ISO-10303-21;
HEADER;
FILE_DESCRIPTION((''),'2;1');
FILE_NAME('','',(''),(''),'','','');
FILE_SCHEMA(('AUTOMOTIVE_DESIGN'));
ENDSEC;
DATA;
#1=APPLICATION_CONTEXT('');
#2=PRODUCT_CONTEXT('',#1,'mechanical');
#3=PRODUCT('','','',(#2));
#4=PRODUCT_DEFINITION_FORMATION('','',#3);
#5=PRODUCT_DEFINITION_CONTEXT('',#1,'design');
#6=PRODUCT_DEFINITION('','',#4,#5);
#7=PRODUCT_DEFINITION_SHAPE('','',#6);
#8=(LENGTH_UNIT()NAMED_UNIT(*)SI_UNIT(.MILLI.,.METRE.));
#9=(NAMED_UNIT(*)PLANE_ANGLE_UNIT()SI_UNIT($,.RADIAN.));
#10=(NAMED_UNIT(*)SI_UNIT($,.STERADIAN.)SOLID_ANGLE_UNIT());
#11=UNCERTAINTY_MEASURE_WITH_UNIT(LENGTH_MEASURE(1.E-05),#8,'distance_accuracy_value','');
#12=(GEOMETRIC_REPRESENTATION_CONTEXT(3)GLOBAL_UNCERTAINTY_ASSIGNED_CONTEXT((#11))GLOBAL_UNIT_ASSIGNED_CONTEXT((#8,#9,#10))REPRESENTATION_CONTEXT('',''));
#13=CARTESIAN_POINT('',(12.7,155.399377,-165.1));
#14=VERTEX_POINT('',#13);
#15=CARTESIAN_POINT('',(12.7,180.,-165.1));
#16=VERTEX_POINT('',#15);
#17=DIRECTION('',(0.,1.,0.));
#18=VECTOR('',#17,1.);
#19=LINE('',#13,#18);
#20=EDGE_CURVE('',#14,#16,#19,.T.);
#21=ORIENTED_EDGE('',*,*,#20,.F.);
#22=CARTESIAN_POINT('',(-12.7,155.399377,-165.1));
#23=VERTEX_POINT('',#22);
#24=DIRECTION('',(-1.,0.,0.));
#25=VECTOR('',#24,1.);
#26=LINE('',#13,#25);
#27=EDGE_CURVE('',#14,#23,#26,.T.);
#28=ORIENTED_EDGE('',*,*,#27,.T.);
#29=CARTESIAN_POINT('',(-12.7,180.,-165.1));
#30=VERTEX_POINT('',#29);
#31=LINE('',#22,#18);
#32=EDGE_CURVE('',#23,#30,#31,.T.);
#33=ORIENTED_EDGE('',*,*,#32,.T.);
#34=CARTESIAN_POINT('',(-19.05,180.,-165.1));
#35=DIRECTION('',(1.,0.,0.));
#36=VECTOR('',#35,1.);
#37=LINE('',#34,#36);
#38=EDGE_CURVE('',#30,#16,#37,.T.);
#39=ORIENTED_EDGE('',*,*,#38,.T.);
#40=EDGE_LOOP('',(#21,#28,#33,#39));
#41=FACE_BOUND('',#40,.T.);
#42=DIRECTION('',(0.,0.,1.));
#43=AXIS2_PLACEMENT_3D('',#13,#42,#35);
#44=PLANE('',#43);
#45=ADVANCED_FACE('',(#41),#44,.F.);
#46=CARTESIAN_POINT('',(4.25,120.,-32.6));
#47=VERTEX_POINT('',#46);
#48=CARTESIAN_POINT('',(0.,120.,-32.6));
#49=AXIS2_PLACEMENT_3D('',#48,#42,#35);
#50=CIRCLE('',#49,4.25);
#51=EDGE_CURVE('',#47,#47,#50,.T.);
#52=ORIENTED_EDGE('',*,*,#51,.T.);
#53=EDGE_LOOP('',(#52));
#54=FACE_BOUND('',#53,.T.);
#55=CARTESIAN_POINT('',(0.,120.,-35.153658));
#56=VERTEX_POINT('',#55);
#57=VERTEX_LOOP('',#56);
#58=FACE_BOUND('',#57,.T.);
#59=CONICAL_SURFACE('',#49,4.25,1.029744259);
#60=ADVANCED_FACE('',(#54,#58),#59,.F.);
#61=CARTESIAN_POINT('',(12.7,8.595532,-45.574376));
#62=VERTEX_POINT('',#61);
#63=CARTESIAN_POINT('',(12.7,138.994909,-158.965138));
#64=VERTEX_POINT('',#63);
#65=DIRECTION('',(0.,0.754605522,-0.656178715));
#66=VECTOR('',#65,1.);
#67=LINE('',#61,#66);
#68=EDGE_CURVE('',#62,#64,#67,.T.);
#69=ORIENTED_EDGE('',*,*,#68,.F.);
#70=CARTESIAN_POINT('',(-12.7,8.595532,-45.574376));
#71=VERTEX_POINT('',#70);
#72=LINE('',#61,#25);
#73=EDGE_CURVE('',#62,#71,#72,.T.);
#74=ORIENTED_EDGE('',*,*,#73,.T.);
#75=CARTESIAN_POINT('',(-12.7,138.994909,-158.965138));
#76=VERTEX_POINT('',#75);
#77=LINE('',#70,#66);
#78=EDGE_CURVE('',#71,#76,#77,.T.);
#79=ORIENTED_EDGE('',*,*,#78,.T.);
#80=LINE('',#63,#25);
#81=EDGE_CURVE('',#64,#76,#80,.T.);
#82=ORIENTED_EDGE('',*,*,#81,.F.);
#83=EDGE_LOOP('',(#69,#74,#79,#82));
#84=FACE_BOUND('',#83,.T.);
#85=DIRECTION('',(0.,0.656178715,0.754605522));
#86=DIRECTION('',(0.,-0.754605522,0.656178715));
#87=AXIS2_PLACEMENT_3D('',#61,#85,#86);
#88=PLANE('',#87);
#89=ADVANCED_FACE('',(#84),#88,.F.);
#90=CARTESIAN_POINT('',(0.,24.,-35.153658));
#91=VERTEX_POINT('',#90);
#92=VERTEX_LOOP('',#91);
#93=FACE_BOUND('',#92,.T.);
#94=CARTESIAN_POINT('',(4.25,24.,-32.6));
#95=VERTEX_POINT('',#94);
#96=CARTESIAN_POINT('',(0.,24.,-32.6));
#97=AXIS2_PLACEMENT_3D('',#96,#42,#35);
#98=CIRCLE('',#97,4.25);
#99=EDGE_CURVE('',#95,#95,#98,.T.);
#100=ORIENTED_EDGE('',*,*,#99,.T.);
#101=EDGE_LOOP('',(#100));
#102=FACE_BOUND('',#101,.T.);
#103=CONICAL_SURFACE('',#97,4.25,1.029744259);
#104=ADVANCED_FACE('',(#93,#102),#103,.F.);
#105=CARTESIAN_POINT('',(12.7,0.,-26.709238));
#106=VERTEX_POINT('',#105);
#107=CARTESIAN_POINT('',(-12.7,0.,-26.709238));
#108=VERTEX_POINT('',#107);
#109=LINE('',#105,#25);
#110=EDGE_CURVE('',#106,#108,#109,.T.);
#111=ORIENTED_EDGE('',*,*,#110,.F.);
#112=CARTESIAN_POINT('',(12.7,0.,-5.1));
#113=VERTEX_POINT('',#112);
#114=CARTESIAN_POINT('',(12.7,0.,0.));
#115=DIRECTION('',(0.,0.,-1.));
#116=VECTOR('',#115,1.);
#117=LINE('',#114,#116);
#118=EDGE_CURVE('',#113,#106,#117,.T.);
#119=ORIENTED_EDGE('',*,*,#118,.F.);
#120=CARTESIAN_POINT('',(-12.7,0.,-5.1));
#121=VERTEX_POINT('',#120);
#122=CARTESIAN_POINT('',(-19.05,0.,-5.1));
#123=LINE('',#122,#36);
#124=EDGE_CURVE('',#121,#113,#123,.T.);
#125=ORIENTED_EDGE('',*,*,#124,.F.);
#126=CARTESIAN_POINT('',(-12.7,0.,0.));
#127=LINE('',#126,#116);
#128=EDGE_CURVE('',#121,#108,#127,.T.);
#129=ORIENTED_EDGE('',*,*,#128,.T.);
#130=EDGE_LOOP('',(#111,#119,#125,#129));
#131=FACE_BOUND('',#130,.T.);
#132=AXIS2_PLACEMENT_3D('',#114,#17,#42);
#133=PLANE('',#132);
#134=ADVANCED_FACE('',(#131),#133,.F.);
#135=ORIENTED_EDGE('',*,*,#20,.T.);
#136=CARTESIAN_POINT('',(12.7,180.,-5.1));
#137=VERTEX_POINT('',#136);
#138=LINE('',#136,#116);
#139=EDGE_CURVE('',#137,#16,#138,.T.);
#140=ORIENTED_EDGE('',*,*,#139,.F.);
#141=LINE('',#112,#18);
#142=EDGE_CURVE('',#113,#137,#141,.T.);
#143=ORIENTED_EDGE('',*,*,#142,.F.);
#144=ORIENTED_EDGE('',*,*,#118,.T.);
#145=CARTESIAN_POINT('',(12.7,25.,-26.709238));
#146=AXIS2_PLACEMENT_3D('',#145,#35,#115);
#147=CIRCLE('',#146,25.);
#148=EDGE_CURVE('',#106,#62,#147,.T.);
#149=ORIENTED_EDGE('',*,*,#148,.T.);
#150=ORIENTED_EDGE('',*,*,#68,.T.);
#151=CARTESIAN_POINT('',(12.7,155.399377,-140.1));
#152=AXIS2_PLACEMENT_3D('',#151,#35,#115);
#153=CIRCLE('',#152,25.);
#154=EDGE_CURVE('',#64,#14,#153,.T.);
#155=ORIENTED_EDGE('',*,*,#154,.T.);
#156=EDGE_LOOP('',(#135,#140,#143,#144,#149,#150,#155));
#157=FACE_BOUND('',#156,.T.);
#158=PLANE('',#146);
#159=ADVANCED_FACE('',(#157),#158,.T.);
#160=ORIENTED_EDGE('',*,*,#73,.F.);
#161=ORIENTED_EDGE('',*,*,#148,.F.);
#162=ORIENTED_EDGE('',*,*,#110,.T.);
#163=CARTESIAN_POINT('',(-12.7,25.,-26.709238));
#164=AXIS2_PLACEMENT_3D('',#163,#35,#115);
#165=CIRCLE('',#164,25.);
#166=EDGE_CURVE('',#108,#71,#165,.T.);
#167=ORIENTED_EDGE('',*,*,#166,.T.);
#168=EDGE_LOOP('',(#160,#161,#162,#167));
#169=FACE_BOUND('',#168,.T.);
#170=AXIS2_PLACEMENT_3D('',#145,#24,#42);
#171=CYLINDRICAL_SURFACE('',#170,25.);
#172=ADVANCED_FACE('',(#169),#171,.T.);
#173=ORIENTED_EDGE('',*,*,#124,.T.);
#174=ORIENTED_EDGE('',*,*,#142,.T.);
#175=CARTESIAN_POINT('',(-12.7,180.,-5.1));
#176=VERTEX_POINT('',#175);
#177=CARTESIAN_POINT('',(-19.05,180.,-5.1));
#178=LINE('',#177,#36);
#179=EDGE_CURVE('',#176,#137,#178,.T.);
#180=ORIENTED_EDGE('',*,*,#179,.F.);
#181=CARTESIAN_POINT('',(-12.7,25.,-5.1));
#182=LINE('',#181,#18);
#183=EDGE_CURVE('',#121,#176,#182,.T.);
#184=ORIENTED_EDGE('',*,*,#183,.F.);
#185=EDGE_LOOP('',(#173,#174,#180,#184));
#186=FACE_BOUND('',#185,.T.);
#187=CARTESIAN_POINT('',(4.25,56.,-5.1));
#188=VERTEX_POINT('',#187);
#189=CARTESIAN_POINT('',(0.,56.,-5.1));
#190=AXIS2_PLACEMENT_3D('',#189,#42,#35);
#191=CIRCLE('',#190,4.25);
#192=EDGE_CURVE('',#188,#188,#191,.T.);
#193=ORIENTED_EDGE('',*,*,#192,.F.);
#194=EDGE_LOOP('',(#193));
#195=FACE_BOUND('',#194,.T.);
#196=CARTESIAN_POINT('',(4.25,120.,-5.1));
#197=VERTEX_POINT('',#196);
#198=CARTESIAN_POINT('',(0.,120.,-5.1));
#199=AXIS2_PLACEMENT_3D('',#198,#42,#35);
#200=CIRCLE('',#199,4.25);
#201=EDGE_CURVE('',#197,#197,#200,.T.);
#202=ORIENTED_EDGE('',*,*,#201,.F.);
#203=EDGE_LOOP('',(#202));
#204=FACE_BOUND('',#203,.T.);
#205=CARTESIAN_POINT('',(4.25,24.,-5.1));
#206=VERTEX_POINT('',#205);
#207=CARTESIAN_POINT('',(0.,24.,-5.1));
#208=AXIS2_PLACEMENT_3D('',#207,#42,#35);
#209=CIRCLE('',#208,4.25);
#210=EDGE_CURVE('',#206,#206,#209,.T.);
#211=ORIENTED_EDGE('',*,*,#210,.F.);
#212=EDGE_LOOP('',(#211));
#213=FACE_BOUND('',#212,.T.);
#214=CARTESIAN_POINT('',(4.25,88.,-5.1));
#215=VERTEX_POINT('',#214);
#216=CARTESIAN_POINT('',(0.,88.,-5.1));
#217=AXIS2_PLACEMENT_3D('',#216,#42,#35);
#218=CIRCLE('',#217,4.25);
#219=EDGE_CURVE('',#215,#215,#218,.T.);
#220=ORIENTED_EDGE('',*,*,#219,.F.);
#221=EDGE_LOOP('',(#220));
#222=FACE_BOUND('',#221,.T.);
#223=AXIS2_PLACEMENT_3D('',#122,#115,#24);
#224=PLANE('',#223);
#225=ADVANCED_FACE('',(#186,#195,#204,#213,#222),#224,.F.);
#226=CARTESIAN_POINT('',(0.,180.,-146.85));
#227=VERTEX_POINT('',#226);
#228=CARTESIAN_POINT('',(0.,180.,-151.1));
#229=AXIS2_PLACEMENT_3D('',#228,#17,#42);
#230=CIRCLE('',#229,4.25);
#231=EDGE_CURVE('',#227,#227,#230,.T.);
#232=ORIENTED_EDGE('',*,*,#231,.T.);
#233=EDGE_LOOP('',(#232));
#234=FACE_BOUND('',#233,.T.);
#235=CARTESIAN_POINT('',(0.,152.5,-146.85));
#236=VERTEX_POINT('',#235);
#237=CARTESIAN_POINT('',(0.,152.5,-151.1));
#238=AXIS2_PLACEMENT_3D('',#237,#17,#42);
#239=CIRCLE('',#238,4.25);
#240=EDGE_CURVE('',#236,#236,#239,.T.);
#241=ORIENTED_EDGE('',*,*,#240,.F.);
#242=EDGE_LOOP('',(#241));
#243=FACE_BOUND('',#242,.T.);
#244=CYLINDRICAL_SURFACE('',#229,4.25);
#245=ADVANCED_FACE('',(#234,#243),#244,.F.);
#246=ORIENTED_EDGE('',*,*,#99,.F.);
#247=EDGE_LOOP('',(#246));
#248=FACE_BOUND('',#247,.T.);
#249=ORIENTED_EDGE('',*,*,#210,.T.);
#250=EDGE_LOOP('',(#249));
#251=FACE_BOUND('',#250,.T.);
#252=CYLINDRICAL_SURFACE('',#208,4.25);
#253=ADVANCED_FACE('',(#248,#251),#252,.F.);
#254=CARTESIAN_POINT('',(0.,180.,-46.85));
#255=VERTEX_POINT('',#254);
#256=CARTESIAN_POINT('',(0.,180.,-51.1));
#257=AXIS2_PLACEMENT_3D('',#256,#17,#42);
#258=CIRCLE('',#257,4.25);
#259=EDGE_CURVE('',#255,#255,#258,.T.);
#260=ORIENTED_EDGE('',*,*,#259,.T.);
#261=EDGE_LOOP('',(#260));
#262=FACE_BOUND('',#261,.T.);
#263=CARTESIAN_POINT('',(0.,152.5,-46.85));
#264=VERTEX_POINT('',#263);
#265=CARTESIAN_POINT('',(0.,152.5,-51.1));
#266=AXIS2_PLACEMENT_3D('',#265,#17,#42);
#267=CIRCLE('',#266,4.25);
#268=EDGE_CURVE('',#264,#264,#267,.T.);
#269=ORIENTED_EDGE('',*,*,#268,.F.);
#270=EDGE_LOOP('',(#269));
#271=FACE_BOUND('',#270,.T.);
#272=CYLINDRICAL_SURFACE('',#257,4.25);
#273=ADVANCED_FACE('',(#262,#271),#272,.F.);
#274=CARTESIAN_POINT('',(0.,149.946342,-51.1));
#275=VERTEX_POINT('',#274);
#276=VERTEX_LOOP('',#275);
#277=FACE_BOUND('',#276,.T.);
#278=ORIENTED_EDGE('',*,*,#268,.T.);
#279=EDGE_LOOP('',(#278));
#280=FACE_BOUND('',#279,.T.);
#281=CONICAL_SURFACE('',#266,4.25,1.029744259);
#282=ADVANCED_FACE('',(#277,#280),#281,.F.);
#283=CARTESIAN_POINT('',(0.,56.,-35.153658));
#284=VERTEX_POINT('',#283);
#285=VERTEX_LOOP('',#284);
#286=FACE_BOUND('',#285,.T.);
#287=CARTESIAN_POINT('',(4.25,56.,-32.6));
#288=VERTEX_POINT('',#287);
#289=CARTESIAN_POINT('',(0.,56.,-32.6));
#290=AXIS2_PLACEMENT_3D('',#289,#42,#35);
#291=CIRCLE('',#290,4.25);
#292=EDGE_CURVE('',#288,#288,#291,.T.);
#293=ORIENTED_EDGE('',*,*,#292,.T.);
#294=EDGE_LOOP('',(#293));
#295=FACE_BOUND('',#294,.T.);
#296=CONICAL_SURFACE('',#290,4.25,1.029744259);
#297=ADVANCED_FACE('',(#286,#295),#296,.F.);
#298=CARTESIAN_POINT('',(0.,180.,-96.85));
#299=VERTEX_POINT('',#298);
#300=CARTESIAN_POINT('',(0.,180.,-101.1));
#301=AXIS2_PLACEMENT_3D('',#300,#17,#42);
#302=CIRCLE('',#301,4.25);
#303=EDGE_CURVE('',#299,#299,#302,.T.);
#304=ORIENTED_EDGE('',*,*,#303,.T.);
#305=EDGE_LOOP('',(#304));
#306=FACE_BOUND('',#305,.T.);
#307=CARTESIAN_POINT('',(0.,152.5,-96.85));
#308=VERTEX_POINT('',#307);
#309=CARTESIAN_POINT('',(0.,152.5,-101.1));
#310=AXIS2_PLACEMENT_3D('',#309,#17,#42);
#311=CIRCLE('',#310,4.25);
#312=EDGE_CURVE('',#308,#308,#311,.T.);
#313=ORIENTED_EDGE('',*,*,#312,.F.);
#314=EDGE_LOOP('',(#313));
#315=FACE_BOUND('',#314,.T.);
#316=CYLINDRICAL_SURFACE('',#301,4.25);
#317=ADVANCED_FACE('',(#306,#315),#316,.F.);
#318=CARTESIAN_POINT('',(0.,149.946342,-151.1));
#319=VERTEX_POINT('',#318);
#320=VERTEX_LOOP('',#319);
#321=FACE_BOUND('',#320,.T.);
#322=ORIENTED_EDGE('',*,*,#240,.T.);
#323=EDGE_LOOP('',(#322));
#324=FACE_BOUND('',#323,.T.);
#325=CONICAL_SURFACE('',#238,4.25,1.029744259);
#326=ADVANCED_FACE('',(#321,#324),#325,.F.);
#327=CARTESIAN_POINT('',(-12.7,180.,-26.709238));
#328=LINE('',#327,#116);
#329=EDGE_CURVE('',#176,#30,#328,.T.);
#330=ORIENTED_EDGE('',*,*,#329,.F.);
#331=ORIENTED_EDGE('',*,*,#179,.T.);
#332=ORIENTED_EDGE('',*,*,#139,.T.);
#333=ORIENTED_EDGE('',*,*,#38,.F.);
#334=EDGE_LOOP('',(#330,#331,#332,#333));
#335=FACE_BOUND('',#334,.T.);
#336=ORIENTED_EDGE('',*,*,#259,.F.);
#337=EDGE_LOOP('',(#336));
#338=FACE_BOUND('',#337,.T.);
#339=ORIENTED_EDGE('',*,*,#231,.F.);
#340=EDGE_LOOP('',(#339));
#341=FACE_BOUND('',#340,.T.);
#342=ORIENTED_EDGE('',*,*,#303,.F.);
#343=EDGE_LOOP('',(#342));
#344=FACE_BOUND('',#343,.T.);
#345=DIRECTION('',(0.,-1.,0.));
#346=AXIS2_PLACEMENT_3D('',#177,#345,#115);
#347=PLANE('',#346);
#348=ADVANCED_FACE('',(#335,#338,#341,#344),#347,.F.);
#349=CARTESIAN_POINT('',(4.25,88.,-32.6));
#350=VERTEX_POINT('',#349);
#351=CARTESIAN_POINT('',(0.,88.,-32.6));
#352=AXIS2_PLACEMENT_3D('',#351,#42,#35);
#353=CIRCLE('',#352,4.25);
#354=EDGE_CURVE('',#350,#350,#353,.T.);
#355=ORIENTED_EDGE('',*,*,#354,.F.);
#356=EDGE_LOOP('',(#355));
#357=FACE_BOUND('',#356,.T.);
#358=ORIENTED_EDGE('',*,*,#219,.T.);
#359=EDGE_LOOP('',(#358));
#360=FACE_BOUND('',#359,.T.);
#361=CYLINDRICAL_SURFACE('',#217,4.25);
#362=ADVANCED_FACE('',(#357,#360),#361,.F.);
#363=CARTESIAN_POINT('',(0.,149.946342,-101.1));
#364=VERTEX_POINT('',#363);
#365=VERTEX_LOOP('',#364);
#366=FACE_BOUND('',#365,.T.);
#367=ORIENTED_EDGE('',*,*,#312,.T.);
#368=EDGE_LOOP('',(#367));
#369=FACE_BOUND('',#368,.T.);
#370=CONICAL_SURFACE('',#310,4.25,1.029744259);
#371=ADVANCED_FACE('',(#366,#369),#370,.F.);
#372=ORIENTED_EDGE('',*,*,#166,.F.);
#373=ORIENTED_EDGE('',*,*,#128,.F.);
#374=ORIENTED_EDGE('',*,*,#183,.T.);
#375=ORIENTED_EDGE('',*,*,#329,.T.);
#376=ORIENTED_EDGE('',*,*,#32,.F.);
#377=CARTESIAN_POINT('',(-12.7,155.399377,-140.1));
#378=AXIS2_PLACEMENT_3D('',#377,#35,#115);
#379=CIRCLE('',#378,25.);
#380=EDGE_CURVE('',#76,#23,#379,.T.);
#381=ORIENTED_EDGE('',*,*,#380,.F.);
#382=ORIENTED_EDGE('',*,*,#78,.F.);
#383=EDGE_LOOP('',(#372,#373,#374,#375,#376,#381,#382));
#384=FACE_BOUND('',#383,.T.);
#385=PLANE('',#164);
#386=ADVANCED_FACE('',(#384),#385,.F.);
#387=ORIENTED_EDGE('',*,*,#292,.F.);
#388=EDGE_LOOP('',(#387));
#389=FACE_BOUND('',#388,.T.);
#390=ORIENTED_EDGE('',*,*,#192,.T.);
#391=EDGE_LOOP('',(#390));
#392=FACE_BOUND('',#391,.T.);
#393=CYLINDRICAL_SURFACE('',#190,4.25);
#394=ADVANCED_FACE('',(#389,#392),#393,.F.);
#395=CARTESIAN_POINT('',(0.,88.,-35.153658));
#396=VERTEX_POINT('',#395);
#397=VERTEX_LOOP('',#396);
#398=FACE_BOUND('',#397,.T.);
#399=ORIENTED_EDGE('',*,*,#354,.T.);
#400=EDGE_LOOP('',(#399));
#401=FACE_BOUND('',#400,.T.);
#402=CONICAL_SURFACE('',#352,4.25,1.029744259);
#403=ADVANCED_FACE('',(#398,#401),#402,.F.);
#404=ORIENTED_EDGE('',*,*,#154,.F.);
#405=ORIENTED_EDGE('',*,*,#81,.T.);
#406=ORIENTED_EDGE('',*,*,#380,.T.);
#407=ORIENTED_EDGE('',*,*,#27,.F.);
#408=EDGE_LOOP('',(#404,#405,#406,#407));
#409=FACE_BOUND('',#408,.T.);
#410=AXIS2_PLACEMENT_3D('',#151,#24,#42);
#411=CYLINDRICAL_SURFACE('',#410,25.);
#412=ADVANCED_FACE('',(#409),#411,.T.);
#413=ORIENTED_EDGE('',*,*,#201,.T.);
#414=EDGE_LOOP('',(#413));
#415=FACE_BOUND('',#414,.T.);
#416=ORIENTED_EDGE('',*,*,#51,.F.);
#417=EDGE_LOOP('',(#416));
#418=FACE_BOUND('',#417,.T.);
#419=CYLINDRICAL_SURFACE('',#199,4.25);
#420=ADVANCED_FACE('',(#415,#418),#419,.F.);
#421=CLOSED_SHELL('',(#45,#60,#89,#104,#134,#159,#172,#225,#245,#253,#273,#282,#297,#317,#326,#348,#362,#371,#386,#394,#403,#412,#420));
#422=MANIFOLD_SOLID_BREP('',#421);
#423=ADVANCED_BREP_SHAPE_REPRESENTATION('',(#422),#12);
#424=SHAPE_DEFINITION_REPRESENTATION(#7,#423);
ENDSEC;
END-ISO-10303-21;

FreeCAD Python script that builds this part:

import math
import FreeCAD as App
import Part
import Sketcher


def add_polygon(sketch, points):
    """Adds a closed chain of lines whose ends are joined by coincident constraints."""
    first, n = sketch.GeometryCount, len(points)
    for a, b in zip(points, points[1:] + points[:1]):
        sketch.addGeometry(Part.LineSegment(App.Vector(*a, 0), App.Vector(*b, 0)), False)
    for i in range(n):
        sketch.addConstraint(Sketcher.Constraint("Coincident", first + i, 2, first + (i + 1) % n, 1))

doc = App.newDocument("Part")
body = doc.addObject("PartDesign::Body", "Body")

sketch1 = body.newObject("Sketcher::SketchObject", "Sketch")
sketch1.AttachmentSupport = (doc.getObject("YZ_Plane"), [""])
sketch1.MapMode = "FlatFace"
sketch1.addGeometry([
    Part.LineSegment(App.Vector(0, 0, 0), App.Vector(0, -27, 0)),
    Part.ArcOfCircle(Part.Circle(App.Vector(25, -27, 0), App.Vector(0, 0, 1), 25), math.radians(180), math.radians(229)),
    Part.LineSegment(App.Vector(9, -46, 0), App.Vector(139, -159, 0)),
    Part.ArcOfCircle(Part.Circle(App.Vector(155, -140, 0), App.Vector(0, 0, 1), 25), math.radians(-131), math.radians(-90)),
    Part.LineSegment(App.Vector(155, -165, 0), App.Vector(184, -165, 0)),
    Part.LineSegment(App.Vector(184, -165, 0), App.Vector(184, 0, 0)),
    Part.LineSegment(App.Vector(184, 0, 0), App.Vector(0, 0, 0)),
], False)
sketch1.addConstraint([
    Sketcher.Constraint("Tangent", 0, 2, 1, 1),
    Sketcher.Constraint("Tangent", 1, 2, 2, 1),
    Sketcher.Constraint("Tangent", 2, 2, 3, 1),
    Sketcher.Constraint("Tangent", 3, 2, 4, 1),
    Sketcher.Constraint("Coincident", 4, 2, 5, 1),
    Sketcher.Constraint("Coincident", 5, 2, 6, 1),
    Sketcher.Constraint("Coincident", 6, 2, 0, 1),
    Sketcher.Constraint("Vertical", 0),
    Sketcher.Constraint("Horizontal", 4),
    Sketcher.Constraint("Vertical", 5),
    Sketcher.Constraint("Horizontal", 6),
    Sketcher.Constraint("Coincident", 6, 2, -1, 1),
    Sketcher.Constraint("Equal", 1, 3),
    Sketcher.Constraint("Radius", 1, 25.0),
    Sketcher.Constraint("DistanceY", 5, 1, 5, 2, 165.1),
    Sketcher.Constraint("DistanceX", 6, 2, 6, 1, 184.15),
    Sketcher.Constraint("DistanceY", 2, 2, 1, 3, 132.2559),
    Sketcher.Constraint("DistanceX", 4, 1, 4, 2, 28.750623),
])
pad1 = body.newObject("PartDesign::Pad", "Pad")
pad1.Profile = sketch1
pad1.Length = 25.4
pad1.Midplane = True

sketch2 = body.newObject("Sketcher::SketchObject", "Sketch001")
sketch2.AttachmentSupport = (doc.getObject("YZ_Plane"), [""])
sketch2.MapMode = "FlatFace"
sketch2.AttachmentOffset = App.Placement(App.Vector(0, 0, 12.7), App.Rotation())
add_polygon(sketch2, [(184.2, 0), (0, 0), (0, -5.1), (180, -5.1), (180, -165.1), (184.2, -165.1)])
sketch2.addConstraint([
    Sketcher.Constraint("Horizontal", 0),
    Sketcher.Constraint("Vertical", 1),
    Sketcher.Constraint("Horizontal", 2),
    Sketcher.Constraint("Vertical", 3),
    Sketcher.Constraint("Horizontal", 4),
    Sketcher.Constraint("Vertical", 5),
    Sketcher.Constraint("Coincident", 0, 2, -1, 1),
    Sketcher.Constraint("DistanceX", 2, 1, 2, 2, 180.0),
    Sketcher.Constraint("DistanceY", 3, 2, 3, 1, 160.0),
    Sketcher.Constraint("DistanceY", 1, 2, 1, 1, 5.1),
    Sketcher.Constraint("DistanceX", 0, 2, 0, 1, 184.15),
])
pocket1 = body.newObject("PartDesign::Pocket", "Pocket")
pocket1.Profile = sketch2
pocket1.Length = 31.75

sketch3 = body.newObject("Sketcher::SketchObject", "Sketch002")
sketch3.AttachmentSupport = (doc.getObject("XZ_Plane"), [""])
sketch3.MapMode = "FlatFace"
sketch3.AttachmentOffset = App.Placement(App.Vector(0, 0, -180), App.Rotation())
sketch3.addGeometry([
    Part.Circle(App.Vector(0, -51.1, 0), App.Vector(0, 0, 1), 4.2),
    Part.Circle(App.Vector(0, -101.1, 0), App.Vector(0, 0, 1), 4.2),
    Part.Circle(App.Vector(0, -151.1, 0), App.Vector(0, 0, 1), 4.2),
], False)
sketch3.addConstraint([
    Sketcher.Constraint("Equal", 0, 1),
    Sketcher.Constraint("Equal", 1, 2),
    Sketcher.Constraint("PointOnObject", 0, 3, -2),
    Sketcher.Constraint("PointOnObject", 1, 3, -2),
    Sketcher.Constraint("PointOnObject", 2, 3, -2),
    Sketcher.Constraint("Diameter", 0, 8.5),
    Sketcher.Constraint("DistanceY", 1, 3, 0, 3, 50.0),
    Sketcher.Constraint("DistanceY", 2, 3, 1, 3, 50.0),
    Sketcher.Constraint("DistanceY", 0, 3, -1, 1, 51.1),
])
doc.recompute()
hole = body.newObject("PartDesign::Hole", "Hole")
hole.Profile = sketch3
hole.ThreadType = "None"
hole.Diameter = 8.5
hole.DepthType = "Dimension"
hole.Depth = 27.5
hole.DrillPoint = "Angled"
hole.DrillPointAngle = 118
hole.Reversed = True

sketch4 = body.newObject("Sketcher::SketchObject", "Sketch003")
sketch4.AttachmentSupport = (doc.getObject("XY_Plane"), [""])
sketch4.MapMode = "FlatFace"
sketch4.AttachmentOffset = App.Placement(App.Vector(0, 0, -5.1), App.Rotation())
sketch4.addGeometry([
    Part.Circle(App.Vector(0, 120, 0), App.Vector(0, 0, 1), 4.2),
    Part.Circle(App.Vector(0, 88, 0), App.Vector(0, 0, 1), 4.2),
    Part.Circle(App.Vector(0, 56, 0), App.Vector(0, 0, 1), 4.2),
    Part.Circle(App.Vector(0, 24, 0), App.Vector(0, 0, 1), 4.2),
], False)
sketch4.addConstraint([
    Sketcher.Constraint("Equal", 0, 1),
    Sketcher.Constraint("Equal", 1, 2),
    Sketcher.Constraint("Equal", 2, 3),
    Sketcher.Constraint("PointOnObject", 0, 3, -2),
    Sketcher.Constraint("PointOnObject", 1, 3, -2),
    Sketcher.Constraint("PointOnObject", 2, 3, -2),
    Sketcher.Constraint("PointOnObject", 3, 3, -2),
    Sketcher.Constraint("Diameter", 0, 8.5),
    Sketcher.Constraint("DistanceY", -1, 1, 0, 3, 120.0),
    Sketcher.Constraint("DistanceY", -1, 1, 1, 3, 88.0),
    Sketcher.Constraint("DistanceY", -1, 1, 2, 3, 56.0),
    Sketcher.Constraint("DistanceY", -1, 1, 3, 3, 24.0),
])
doc.recompute()
hole2 = body.newObject("PartDesign::Hole", "Hole001")
hole2.Profile = sketch4
hole2.ThreadType = "None"
hole2.Diameter = 8.5
hole2.DepthType = "Dimension"
hole2.Depth = 27.5
hole2.DrillPoint = "Angled"
hole2.DrillPointAngle = 118

doc.recompute()
